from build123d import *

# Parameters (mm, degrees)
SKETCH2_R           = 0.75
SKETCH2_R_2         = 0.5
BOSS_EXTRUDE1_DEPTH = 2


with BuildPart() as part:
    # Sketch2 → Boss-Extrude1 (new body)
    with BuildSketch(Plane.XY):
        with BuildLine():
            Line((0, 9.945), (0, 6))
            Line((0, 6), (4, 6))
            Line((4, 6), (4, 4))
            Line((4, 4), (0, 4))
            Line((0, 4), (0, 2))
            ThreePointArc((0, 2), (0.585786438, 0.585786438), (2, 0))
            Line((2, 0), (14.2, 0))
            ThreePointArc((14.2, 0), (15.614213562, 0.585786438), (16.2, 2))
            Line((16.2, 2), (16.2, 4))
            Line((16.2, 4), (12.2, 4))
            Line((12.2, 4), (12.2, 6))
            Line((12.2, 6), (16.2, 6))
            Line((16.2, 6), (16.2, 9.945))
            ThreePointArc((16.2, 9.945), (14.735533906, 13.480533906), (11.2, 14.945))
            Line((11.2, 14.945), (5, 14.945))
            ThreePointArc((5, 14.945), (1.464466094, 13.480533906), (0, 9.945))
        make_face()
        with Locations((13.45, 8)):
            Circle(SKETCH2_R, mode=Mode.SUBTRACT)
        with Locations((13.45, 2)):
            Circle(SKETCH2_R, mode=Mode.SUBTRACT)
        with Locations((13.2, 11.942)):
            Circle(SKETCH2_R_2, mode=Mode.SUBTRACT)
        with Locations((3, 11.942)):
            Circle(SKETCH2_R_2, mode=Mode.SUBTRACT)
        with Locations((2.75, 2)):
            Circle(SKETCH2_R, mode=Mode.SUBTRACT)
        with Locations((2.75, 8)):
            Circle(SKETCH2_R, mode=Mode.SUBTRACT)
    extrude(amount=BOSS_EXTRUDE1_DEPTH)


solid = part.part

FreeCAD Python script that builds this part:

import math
import FreeCAD as App
import Part
import Sketcher
Q = App.Units.Quantity

doc = App.newDocument("Part")
body = doc.addObject("PartDesign::Body", "Body")

sketch1 = doc.addObject("Sketcher::SketchObject", "Sketch")
body.addObject(sketch1)
sketch1.AttachmentSupport = (doc.XY_Plane, [""])
sketch1.MapMode = "FlatFace"
sketch1.addGeometry([
    Part.LineSegment(App.Vector(0, 9.9, 0), App.Vector(0, 6, 0)),
    Part.LineSegment(App.Vector(0, 6, 0), App.Vector(4, 6, 0)),
    Part.LineSegment(App.Vector(4, 6, 0), App.Vector(4, 4, 0)),
    Part.LineSegment(App.Vector(4, 4, 0), App.Vector(0, 4, 0)),
    Part.LineSegment(App.Vector(0, 4, 0), App.Vector(0, 2, 0)),
    Part.ArcOfCircle(Part.Circle(App.Vector(2, 2, 0), App.Vector(0, 0, 1), 2), math.radians(-180), math.radians(-90)),
    Part.LineSegment(App.Vector(2, 0, 0), App.Vector(14.2, 0, 0)),
    Part.ArcOfCircle(Part.Circle(App.Vector(14.2, 2, 0), App.Vector(0, 0, 1), 2), math.radians(-90), math.radians(0)),
    Part.LineSegment(App.Vector(16.2, 2, 0), App.Vector(16.2, 4, 0)),
    Part.LineSegment(App.Vector(16.2, 4, 0), App.Vector(12.2, 4, 0)),
    Part.LineSegment(App.Vector(12.2, 4, 0), App.Vector(12.2, 6, 0)),
    Part.LineSegment(App.Vector(12.2, 6, 0), App.Vector(16.2, 6, 0)),
    Part.LineSegment(App.Vector(16.2, 6, 0), App.Vector(16.2, 9.9, 0)),
    Part.ArcOfCircle(Part.Circle(App.Vector(11.2, 9.9, 0), App.Vector(0, 0, 1), 5), math.radians(0), math.radians(90)),
    Part.LineSegment(App.Vector(11.2, 14.9, 0), App.Vector(5, 14.9, 0)),
    Part.ArcOfCircle(Part.Circle(App.Vector(5, 9.9, 0), App.Vector(0, 0, 1), 5), math.radians(90), math.radians(180)),
    Part.Circle(App.Vector(2.8, 2, 0), App.Vector(0, 0, 1), 0.8),
    Part.Circle(App.Vector(13.4, 2, 0), App.Vector(0, 0, 1), 0.8),
    Part.Circle(App.Vector(2.8, 8, 0), App.Vector(0, 0, 1), 0.8),
    Part.Circle(App.Vector(3, 11.9, 0), App.Vector(0, 0, 1), 0.5),
    Part.Circle(App.Vector(13.4, 8, 0), App.Vector(0, 0, 1), 0.8),
    Part.Circle(App.Vector(13.2, 11.9, 0), App.Vector(0, 0, 1), 0.5),
], False)
sketch1.addConstraint([
    Sketcher.Constraint("Coincident", 0, 2, 1, 1),
    Sketcher.Constraint("Coincident", 1, 2, 2, 1),
    Sketcher.Constraint("Coincident", 2, 2, 3, 1),
    Sketcher.Constraint("Coincident", 3, 2, 4, 1),
    Sketcher.Constraint("Tangent", 4, 2, 5, 1),
    Sketcher.Constraint("Tangent", 5, 2, 6, 1),
    Sketcher.Constraint("Tangent", 6, 2, 7, 1),
    Sketcher.Constraint("Tangent", 7, 2, 8, 1),
    Sketcher.Constraint("Coincident", 8, 2, 9, 1),
    Sketcher.Constraint("Coincident", 9, 2, 10, 1),
    Sketcher.Constraint("Coincident", 10, 2, 11, 1),
    Sketcher.Constraint("Coincident", 11, 2, 12, 1),
    Sketcher.Constraint("Tangent", 12, 2, 13, 1),
    Sketcher.Constraint("Tangent", 13, 2, 14, 1),
    Sketcher.Constraint("Tangent", 14, 2, 15, 1),
    Sketcher.Constraint("Tangent", 15, 2, 0, 1),
    Sketcher.Constraint("Vertical", 0),
    Sketcher.Constraint("Horizontal", 1),
    Sketcher.Constraint("Vertical", 2),
    Sketcher.Constraint("Horizontal", 3),
    Sketcher.Constraint("Vertical", 4),
    Sketcher.Constraint("Horizontal", 6),
    Sketcher.Constraint("Vertical", 8),
    Sketcher.Constraint("Horizontal", 9),
    Sketcher.Constraint("Vertical", 10),
    Sketcher.Constraint("Horizontal", 11),
    Sketcher.Constraint("Vertical", 12),
    Sketcher.Constraint("Horizontal", 14),
    Sketcher.Constraint("Equal", 5, 7),
    Sketcher.Constraint("Equal", 13, 15),
    Sketcher.Constraint("Equal", 16, 17),
    Sketcher.Constraint("Equal", 17, 18),
    Sketcher.Constraint("Equal", 18, 20),
    Sketcher.Constraint("Equal", 19, 21),
    Sketcher.Constraint("PointOnObject", 0, 2, -2),
    Sketcher.Constraint("PointOnObject", 3, 2, -2),
    Sketcher.Constraint("PointOnObject", 5, 2, -1),
    Sketcher.Constraint("Horizontal", 7, 3, 16, 3),
    Sketcher.Constraint("Horizontal", 16, 3, 17, 3),
    Sketcher.Constraint("Horizontal", 18, 3, 20, 3),
    Sketcher.Constraint("Horizontal", 19, 3, 21, 3),
    Sketcher.Constraint("Horizontal", 3, 2, 8, 2),
    Sketcher.Constraint("Horizontal", 1, 2, 10, 2),
    Sketcher.Constraint("Vertical", 16, 3, 18, 3),
    Sketcher.Constraint("Vertical", 17, 3, 20, 3),
    Sketcher.Constraint("Vertical", 8, 2, 11, 2),
    Sketcher.Constraint("Equal", 3, 9),
    Sketcher.Constraint("Equal", 2, 4),
    Sketcher.Constraint("Diameter", 19, Q("1 mm")),
    Sketcher.Constraint("Radius", 5, Q("2 mm")),
    Sketcher.Constraint("Radius", 13, Q("5 mm")),
    Sketcher.Constraint("Diameter", 16, Q("1.5 mm")),
    Sketcher.Constraint("DistanceX", 1, 1, 1, 2, Q("4 mm")),
    Sketcher.Constraint("DistanceY", 2, 2, 2, 1, Q("2 mm")),
    Sketcher.Constraint("DistanceX", 6, 1, 6, 2, Q("12.2 mm")),
    Sketcher.Constraint("DistanceY", -1, 1, 18, 3, Q("8 mm")),
    Sketcher.Constraint("DistanceX", -1, 1, 19, 3, Q("3 mm")),
    Sketcher.Constraint("DistanceX", 13, 3, 21, 3, Q("2 mm")),
    Sketcher.Constraint("DistanceX", 16, 3, 17, 3, Q("10.7 mm")),
    Sketcher.Constraint("DistanceY", 0, 2, 0, 1, Q("3.945 mm")),
    Sketcher.Constraint("DistanceX", -1, 1, 16, 3, Q("2.75 mm")),
    Sketcher.Constraint("DistanceY", -1, 1, 19, 3, Q("11.942 mm")),
])
pad1 = doc.addObject("PartDesign::Pad", "Pad")
body.addObject(pad1)
pad1.Profile = sketch1
pad1.Length = 2

doc.recompute()
